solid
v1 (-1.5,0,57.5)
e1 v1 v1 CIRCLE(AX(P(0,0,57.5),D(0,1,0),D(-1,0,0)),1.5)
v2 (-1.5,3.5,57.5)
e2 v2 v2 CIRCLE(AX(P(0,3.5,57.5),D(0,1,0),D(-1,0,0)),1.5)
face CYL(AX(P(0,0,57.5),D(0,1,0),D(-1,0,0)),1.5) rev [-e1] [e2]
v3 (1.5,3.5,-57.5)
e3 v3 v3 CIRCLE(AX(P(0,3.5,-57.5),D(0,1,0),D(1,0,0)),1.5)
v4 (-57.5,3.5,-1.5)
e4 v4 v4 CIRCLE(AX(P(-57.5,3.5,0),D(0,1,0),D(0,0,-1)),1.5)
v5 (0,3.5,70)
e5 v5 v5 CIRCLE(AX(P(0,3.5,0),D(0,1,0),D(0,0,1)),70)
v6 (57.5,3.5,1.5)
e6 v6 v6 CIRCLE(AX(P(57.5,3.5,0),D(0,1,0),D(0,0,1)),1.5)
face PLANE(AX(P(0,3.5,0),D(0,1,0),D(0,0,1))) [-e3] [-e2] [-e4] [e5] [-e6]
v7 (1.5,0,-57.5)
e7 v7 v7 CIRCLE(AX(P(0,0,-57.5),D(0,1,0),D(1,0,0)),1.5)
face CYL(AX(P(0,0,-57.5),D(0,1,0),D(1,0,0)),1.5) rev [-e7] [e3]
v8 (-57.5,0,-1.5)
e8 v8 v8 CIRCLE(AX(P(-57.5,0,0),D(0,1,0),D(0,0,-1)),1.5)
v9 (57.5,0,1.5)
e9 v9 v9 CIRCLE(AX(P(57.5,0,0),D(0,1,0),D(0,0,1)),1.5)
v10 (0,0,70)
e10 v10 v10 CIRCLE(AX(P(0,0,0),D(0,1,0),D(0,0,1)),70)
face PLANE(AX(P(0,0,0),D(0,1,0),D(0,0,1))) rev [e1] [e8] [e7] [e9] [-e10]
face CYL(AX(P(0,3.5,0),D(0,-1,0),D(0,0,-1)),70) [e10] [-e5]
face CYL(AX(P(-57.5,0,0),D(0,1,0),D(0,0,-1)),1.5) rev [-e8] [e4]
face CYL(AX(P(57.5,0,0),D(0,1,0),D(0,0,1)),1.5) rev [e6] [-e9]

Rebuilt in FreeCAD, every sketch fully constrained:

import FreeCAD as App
import Part
import Sketcher

V = App.Vector
Q = App.Units.Quantity

doc = App.newDocument("Part")
body = doc.addObject("PartDesign::Body", "Body")

sketch1 = body.newObject("Sketcher::SketchObject", "Sketch")
sketch1.AttachmentSupport = (doc.getObject("XZ_Plane"), [""])
sketch1.MapMode = "FlatFace"
sketch1.addGeometry(Part.Circle(V(0, 0, 0), V(0, 0, 1), 70), False)
sketch1.addConstraint(Sketcher.Constraint("Coincident", 0, 3, -1, 1))
sketch1.addConstraint(Sketcher.Constraint("Diameter", 0, Q("140 mm")))
pad1 = body.newObject("PartDesign::Pad", "Pad")
pad1.Profile = sketch1
pad1.Length = 3.5
pad1.Reversed = True

sketch2 = body.newObject("Sketcher::SketchObject", "Sketch001")
sketch2.AttachmentSupport = (doc.getObject("XZ_Plane"), [""])
sketch2.MapMode = "FlatFace"
sketch2.AttachmentOffset = App.Placement(V(0, 0, -3.5), App.Rotation())
sketch2.addGeometry(Part.Circle(V(57.5, 0, 0), V(0, 0, 1), 1.5), False)
sketch2.addConstraint(Sketcher.Constraint("PointOnObject", 0, 3, -1))
sketch2.addConstraint(Sketcher.Constraint("Diameter", 0, Q("3 mm")))
sketch2.addConstraint(Sketcher.Constraint("DistanceX", -1, 1, 0, 3, Q("57.5 mm")))
pocket1 = body.newObject("PartDesign::Pocket", "Pocket")
pocket1.Profile = sketch2
pocket1.Length = 3.5
pocket1.Reversed = True
doc.recompute()

polarpattern = body.newObject("PartDesign::PolarPattern", "PolarPattern")
polarpattern.Originals = [pocket1]
polarpattern.Axis = (doc.getObject("Y_Axis"), [""])
polarpattern.Angle = 360
polarpattern.Occurrences = 4
body.Tip = polarpattern

doc.recompute()
